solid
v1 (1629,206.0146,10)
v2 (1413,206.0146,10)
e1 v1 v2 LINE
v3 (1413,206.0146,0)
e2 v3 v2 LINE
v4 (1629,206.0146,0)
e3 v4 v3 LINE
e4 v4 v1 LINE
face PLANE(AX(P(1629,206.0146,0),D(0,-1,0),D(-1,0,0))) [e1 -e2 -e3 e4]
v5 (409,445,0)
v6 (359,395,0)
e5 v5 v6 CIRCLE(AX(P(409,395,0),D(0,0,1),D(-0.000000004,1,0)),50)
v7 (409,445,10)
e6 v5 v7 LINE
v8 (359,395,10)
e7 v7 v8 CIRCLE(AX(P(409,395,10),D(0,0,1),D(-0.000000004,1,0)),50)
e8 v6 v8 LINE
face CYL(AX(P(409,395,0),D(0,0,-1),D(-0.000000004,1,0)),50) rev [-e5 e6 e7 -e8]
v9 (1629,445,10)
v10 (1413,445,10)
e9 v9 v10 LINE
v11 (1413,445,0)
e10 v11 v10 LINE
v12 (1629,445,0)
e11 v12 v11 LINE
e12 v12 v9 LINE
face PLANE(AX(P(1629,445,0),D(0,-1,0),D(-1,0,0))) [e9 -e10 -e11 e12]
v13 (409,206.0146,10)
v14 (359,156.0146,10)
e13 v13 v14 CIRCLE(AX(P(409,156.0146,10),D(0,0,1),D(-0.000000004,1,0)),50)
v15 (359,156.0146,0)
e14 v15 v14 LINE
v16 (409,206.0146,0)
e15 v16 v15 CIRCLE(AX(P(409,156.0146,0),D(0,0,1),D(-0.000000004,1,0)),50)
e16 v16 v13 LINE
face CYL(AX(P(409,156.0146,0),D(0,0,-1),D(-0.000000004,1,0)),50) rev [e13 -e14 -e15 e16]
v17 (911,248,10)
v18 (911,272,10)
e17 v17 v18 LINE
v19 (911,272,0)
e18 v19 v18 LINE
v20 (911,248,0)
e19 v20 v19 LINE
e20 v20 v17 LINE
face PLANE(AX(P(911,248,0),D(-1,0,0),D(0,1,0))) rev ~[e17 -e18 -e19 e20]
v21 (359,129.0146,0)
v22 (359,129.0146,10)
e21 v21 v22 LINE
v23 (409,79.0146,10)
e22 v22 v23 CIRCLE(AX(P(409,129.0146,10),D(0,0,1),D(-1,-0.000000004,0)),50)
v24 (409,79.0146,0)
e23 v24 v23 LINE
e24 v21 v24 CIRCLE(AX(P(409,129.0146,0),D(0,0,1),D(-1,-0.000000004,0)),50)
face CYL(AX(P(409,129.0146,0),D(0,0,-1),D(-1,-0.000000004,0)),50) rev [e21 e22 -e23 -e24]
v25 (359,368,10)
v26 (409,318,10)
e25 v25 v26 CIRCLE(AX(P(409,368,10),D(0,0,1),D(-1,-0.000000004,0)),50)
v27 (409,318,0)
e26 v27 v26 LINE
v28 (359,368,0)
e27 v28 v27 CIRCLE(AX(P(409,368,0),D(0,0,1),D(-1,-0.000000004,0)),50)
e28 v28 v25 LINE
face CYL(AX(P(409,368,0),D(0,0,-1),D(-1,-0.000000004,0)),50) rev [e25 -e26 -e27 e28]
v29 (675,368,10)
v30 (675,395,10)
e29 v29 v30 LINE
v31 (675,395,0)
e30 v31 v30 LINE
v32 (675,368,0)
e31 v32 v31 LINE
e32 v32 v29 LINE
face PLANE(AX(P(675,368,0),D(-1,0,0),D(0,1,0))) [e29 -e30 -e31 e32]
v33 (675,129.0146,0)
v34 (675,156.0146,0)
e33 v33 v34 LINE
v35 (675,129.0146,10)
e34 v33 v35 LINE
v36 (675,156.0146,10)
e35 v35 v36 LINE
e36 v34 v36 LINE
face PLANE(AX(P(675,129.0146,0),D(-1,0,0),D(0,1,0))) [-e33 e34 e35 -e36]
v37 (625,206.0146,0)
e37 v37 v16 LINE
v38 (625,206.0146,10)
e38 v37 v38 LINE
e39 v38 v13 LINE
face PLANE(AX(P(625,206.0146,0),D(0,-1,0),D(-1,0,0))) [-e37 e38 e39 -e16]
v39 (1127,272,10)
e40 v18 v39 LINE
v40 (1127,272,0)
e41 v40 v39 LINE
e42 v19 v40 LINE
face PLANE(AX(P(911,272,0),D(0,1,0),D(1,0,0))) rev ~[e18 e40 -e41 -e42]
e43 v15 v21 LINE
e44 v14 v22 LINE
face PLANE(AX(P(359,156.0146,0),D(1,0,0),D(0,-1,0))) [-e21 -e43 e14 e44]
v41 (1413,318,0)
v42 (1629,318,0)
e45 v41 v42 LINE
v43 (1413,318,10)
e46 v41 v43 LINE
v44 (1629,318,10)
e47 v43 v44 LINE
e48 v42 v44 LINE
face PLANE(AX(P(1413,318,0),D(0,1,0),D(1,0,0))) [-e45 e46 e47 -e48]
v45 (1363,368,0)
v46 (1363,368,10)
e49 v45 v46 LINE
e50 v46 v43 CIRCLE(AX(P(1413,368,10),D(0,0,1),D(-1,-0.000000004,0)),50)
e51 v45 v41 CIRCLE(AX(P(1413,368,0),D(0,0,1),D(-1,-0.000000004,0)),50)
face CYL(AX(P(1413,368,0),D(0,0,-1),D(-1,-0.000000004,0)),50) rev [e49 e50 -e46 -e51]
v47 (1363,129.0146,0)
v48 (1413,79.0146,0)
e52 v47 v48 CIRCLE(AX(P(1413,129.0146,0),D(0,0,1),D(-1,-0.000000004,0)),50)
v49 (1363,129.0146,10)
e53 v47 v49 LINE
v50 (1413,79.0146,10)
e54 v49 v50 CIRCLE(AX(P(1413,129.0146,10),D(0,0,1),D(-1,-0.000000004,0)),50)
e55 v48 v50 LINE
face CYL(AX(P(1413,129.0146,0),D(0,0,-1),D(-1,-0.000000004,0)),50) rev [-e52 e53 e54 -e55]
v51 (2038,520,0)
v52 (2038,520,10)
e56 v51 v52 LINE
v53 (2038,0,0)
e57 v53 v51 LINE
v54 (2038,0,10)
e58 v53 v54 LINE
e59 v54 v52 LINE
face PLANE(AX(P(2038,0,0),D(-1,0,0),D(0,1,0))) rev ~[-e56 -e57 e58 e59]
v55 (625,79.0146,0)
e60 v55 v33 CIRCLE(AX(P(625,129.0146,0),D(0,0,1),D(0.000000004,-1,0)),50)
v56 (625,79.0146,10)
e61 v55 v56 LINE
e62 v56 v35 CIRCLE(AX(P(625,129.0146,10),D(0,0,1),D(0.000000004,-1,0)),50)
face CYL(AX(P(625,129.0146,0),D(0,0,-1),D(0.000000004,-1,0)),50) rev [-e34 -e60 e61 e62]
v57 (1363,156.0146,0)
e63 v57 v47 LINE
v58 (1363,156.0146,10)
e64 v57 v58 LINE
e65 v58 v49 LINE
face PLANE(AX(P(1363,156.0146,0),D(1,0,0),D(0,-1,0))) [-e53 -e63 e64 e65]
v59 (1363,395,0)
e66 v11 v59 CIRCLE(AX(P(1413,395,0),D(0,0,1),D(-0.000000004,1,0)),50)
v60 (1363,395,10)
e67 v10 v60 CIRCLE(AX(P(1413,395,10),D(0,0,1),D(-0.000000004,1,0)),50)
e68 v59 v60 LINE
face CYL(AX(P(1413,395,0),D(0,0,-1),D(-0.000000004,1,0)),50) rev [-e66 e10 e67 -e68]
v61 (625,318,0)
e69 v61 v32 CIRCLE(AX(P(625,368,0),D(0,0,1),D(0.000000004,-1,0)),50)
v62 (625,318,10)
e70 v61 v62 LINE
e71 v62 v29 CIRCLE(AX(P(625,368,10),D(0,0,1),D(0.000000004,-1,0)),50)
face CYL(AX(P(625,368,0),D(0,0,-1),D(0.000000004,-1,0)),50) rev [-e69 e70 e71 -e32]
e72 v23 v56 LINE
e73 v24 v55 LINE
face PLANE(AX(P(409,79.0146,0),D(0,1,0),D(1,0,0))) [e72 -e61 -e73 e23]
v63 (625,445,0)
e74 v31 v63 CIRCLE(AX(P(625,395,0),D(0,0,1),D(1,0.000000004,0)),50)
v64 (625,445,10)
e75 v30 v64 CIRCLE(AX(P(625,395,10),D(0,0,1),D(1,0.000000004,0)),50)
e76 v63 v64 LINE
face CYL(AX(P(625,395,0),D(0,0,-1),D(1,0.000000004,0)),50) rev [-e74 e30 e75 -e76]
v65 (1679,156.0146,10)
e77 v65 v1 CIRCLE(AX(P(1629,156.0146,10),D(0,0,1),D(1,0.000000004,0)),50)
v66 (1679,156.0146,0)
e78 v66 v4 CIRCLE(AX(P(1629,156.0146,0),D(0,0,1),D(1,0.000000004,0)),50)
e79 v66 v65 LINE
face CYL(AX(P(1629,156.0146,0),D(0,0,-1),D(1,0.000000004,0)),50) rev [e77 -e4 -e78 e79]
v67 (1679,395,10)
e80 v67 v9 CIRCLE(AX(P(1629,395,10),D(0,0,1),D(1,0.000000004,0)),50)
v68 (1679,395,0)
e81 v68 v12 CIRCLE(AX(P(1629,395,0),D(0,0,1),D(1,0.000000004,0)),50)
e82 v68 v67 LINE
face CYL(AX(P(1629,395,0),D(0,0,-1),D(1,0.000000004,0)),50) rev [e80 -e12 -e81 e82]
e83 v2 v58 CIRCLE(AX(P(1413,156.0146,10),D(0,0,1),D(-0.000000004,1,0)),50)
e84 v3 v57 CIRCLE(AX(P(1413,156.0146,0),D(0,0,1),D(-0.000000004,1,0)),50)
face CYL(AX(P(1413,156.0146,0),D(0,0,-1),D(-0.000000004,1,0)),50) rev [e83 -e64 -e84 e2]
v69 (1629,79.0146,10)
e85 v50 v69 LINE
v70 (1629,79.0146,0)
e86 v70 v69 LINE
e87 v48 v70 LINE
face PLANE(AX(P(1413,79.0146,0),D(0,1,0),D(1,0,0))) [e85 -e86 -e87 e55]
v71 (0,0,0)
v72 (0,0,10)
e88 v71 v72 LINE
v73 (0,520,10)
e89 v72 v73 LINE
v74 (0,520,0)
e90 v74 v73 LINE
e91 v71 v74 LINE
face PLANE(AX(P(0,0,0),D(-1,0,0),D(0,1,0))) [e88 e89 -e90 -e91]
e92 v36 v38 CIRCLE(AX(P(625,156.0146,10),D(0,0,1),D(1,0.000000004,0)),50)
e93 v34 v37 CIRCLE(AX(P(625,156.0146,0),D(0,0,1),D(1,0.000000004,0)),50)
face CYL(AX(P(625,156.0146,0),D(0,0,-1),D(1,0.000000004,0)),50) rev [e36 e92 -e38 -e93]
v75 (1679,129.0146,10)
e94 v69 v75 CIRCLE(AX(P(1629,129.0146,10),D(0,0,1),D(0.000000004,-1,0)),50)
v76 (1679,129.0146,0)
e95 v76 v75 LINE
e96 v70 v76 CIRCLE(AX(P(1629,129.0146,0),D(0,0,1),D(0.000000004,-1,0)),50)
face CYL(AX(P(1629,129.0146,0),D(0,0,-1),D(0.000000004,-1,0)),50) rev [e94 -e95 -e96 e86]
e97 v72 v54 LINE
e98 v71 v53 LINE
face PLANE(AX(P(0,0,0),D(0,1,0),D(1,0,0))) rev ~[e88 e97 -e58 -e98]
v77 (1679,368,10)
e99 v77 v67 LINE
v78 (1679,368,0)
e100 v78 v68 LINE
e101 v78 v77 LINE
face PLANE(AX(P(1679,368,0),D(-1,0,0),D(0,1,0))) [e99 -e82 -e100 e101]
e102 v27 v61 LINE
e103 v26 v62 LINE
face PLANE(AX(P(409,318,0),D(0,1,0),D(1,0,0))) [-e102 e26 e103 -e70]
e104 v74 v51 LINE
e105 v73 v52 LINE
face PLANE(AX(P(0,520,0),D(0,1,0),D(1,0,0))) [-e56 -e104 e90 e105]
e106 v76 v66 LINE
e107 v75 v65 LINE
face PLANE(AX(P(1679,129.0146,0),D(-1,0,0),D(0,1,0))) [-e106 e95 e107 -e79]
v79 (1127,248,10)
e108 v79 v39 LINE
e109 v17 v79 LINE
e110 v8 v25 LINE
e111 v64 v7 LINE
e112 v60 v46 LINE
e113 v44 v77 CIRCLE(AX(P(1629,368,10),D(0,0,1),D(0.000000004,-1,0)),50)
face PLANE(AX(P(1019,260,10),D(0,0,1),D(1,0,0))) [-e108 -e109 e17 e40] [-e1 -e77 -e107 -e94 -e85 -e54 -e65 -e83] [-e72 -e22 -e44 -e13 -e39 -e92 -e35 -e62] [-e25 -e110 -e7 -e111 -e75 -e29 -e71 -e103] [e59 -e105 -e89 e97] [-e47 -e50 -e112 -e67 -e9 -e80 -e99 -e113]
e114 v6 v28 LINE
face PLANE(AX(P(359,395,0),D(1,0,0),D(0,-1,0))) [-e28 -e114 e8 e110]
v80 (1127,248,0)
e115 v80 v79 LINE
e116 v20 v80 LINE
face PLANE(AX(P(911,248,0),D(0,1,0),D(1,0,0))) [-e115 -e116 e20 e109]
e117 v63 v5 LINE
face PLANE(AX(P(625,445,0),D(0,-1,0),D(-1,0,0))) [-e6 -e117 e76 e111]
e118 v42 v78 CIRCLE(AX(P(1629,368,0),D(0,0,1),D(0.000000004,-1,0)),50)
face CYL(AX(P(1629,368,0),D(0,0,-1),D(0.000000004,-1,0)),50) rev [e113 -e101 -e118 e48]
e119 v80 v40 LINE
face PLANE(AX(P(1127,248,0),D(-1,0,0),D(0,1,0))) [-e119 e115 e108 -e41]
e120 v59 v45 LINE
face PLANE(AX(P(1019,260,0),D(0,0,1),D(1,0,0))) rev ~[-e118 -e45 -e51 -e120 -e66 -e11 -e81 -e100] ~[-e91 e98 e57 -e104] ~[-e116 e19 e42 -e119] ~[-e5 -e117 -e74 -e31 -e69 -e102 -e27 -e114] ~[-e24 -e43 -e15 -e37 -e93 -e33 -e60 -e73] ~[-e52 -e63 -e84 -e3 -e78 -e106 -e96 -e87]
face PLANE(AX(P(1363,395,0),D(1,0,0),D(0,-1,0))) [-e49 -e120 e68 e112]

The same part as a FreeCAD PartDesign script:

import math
import FreeCAD as App
import Part
import Sketcher


def add_polygon(sketch, points):
    """Adds a closed chain of lines whose ends are joined by coincident constraints."""
    first, n = sketch.GeometryCount, len(points)
    for a, b in zip(points, points[1:] + points[:1]):
        sketch.addGeometry(Part.LineSegment(App.Vector(*a, 0), App.Vector(*b, 0)), False)
    for i in range(n):
        sketch.addConstraint(Sketcher.Constraint("Coincident", first + i, 2, first + (i + 1) % n, 1))

doc = App.newDocument("Part")
body = doc.addObject("PartDesign::Body", "Body")

# Sketch on XY plane
sketch1 = body.newObject("Sketcher::SketchObject", "Sketch")
sketch1.AttachmentSupport = (doc.getObject("XY_Plane"), [""])
sketch1.MapMode = "FlatFace"
add_polygon(sketch1, [(0, 520), (0, 0), (2038, 0), (2038, 520)])  # lines 0-3
sketch1.addGeometry(Part.LineSegment(App.Vector(359, 129, 0), App.Vector(359, 156, 0)), False)  # 4
sketch1.addGeometry(Part.ArcOfCircle(Part.Circle(App.Vector(409, 156, 0), App.Vector(0, 0, 1), 50), math.radians(90), math.radians(180)), False)  # 5
sketch1.addGeometry(Part.LineSegment(App.Vector(409, 206, 0), App.Vector(625, 206, 0)), False)  # 6
sketch1.addGeometry(Part.ArcOfCircle(Part.Circle(App.Vector(625, 156, 0), App.Vector(0, 0, 1), 50), math.radians(0), math.radians(90)), False)  # 7
sketch1.addGeometry(Part.LineSegment(App.Vector(675, 156, 0), App.Vector(675, 129, 0)), False)  # 8
sketch1.addGeometry(Part.ArcOfCircle(Part.Circle(App.Vector(625, 129, 0), App.Vector(0, 0, 1), 50), math.radians(-90), math.radians(0)), False)  # 9
sketch1.addGeometry(Part.LineSegment(App.Vector(625, 79, 0), App.Vector(409, 79, 0)), False)  # 10
sketch1.addGeometry(Part.ArcOfCircle(Part.Circle(App.Vector(409, 129, 0), App.Vector(0, 0, 1), 50), math.radians(-180), math.radians(-90)), False)  # 11
sketch1.addGeometry(Part.LineSegment(App.Vector(1363, 129, 0), App.Vector(1363, 156, 0)), False)  # 12
sketch1.addGeometry(Part.ArcOfCircle(Part.Circle(App.Vector(1413, 156, 0), App.Vector(0, 0, 1), 50), math.radians(90), math.radians(180)), False)  # 13
sketch1.addGeometry(Part.LineSegment(App.Vector(1413, 206, 0), App.Vector(1629, 206, 0)), False)  # 14
sketch1.addGeometry(Part.ArcOfCircle(Part.Circle(App.Vector(1629, 156, 0), App.Vector(0, 0, 1), 50), math.radians(0), math.radians(90)), False)  # 15
sketch1.addGeometry(Part.LineSegment(App.Vector(1679, 156, 0), App.Vector(1679, 129, 0)), False)  # 16
sketch1.addGeometry(Part.ArcOfCircle(Part.Circle(App.Vector(1629, 129, 0), App.Vector(0, 0, 1), 50), math.radians(-90), math.radians(0)), False)  # 17
sketch1.addGeometry(Part.LineSegment(App.Vector(1629, 79, 0), App.Vector(1413, 79, 0)), False)  # 18
sketch1.addGeometry(Part.ArcOfCircle(Part.Circle(App.Vector(1413, 129, 0), App.Vector(0, 0, 1), 50), math.radians(-180), math.radians(-90)), False)  # 19
add_polygon(sketch1, [(1127, 248), (911, 248), (911, 272), (1127, 272)])  # lines 20-23
sketch1.addGeometry(Part.LineSegment(App.Vector(359, 368, 0), App.Vector(359, 395, 0)), False)  # 24
sketch1.addGeometry(Part.ArcOfCircle(Part.Circle(App.Vector(409, 395, 0), App.Vector(0, 0, 1), 50), math.radians(90), math.radians(180)), False)  # 25
sketch1.addGeometry(Part.LineSegment(App.Vector(409, 445, 0), App.Vector(625, 445, 0)), False)  # 26
sketch1.addGeometry(Part.ArcOfCircle(Part.Circle(App.Vector(625, 395, 0), App.Vector(0, 0, 1), 50), math.radians(0), math.radians(90)), False)  # 27
sketch1.addGeometry(Part.LineSegment(App.Vector(675, 395, 0), App.Vector(675, 368, 0)), False)  # 28
sketch1.addGeometry(Part.ArcOfCircle(Part.Circle(App.Vector(625, 368, 0), App.Vector(0, 0, 1), 50), math.radians(-90), math.radians(0)), False)  # 29
sketch1.addGeometry(Part.LineSegment(App.Vector(625, 318, 0), App.Vector(409, 318, 0)), False)  # 30
sketch1.addGeometry(Part.ArcOfCircle(Part.Circle(App.Vector(409, 368, 0), App.Vector(0, 0, 1), 50), math.radians(-180), math.radians(-90)), False)  # 31
sketch1.addGeometry(Part.LineSegment(App.Vector(1363, 368, 0), App.Vector(1363, 395, 0)), False)  # 32
sketch1.addGeometry(Part.ArcOfCircle(Part.Circle(App.Vector(1413, 395, 0), App.Vector(0, 0, 1), 50), math.radians(90), math.radians(180)), False)  # 33
sketch1.addGeometry(Part.LineSegment(App.Vector(1413, 445, 0), App.Vector(1629, 445, 0)), False)  # 34
sketch1.addGeometry(Part.ArcOfCircle(Part.Circle(App.Vector(1629, 395, 0), App.Vector(0, 0, 1), 50), math.radians(0), math.radians(90)), False)  # 35
sketch1.addGeometry(Part.LineSegment(App.Vector(1679, 395, 0), App.Vector(1679, 368, 0)), False)  # 36
sketch1.addGeometry(Part.ArcOfCircle(Part.Circle(App.Vector(1629, 368, 0), App.Vector(0, 0, 1), 50), math.radians(-90), math.radians(0)), False)  # 37
sketch1.addGeometry(Part.LineSegment(App.Vector(1629, 318, 0), App.Vector(1413, 318, 0)), False)  # 38
sketch1.addGeometry(Part.ArcOfCircle(Part.Circle(App.Vector(1413, 368, 0), App.Vector(0, 0, 1), 50), math.radians(-180), math.radians(-90)), False)  # 39
sketch1.addConstraint([
    Sketcher.Constraint("Tangent", 4, 2, 5, 2),
    Sketcher.Constraint("Tangent", 5, 1, 6, 1),
    Sketcher.Constraint("Tangent", 6, 2, 7, 2),
    Sketcher.Constraint("Tangent", 7, 1, 8, 1),
    Sketcher.Constraint("Tangent", 8, 2, 9, 2),
    Sketcher.Constraint("Tangent", 9, 1, 10, 1),
    Sketcher.Constraint("Tangent", 10, 2, 11, 2),
    Sketcher.Constraint("Tangent", 11, 1, 4, 1),
    Sketcher.Constraint("Tangent", 12, 2, 13, 2),
    Sketcher.Constraint("Tangent", 13, 1, 14, 1),
    Sketcher.Constraint("Tangent", 14, 2, 15, 2),
    Sketcher.Constraint("Tangent", 15, 1, 16, 1),
    Sketcher.Constraint("Tangent", 16, 2, 17, 2),
    Sketcher.Constraint("Tangent", 17, 1, 18, 1),
    Sketcher.Constraint("Tangent", 18, 2, 19, 2),
    Sketcher.Constraint("Tangent", 19, 1, 12, 1),
    Sketcher.Constraint("Tangent", 24, 2, 25, 2),
    Sketcher.Constraint("Tangent", 25, 1, 26, 1),
    Sketcher.Constraint("Tangent", 26, 2, 27, 2),
    Sketcher.Constraint("Tangent", 27, 1, 28, 1),
    Sketcher.Constraint("Tangent", 28, 2, 29, 2),
    Sketcher.Constraint("Tangent", 29, 1, 30, 1),
    Sketcher.Constraint("Tangent", 30, 2, 31, 2),
    Sketcher.Constraint("Tangent", 31, 1, 24, 1),
    Sketcher.Constraint("Tangent", 32, 2, 33, 2),
    Sketcher.Constraint("Tangent", 33, 1, 34, 1),
    Sketcher.Constraint("Tangent", 34, 2, 35, 2),
    Sketcher.Constraint("Tangent", 35, 1, 36, 1),
    Sketcher.Constraint("Tangent", 36, 2, 37, 2),
    Sketcher.Constraint("Tangent", 37, 1, 38, 1),
    Sketcher.Constraint("Tangent", 38, 2, 39, 2),
    Sketcher.Constraint("Tangent", 39, 1, 32, 1),
    Sketcher.Constraint("Vertical", 0),
    Sketcher.Constraint("Horizontal", 1),
    Sketcher.Constraint("Vertical", 2),
    Sketcher.Constraint("Horizontal", 3),
    Sketcher.Constraint("Vertical", 4),
    Sketcher.Constraint("Horizontal", 6),
    Sketcher.Constraint("Vertical", 8),
    Sketcher.Constraint("Horizontal", 10),
    Sketcher.Constraint("Vertical", 12),
    Sketcher.Constraint("Horizontal", 14),
    Sketcher.Constraint("Vertical", 16),
    Sketcher.Constraint("Horizontal", 18),
    Sketcher.Constraint("Horizontal", 20),
    Sketcher.Constraint("Vertical", 21),
    Sketcher.Constraint("Horizontal", 22),
    Sketcher.Constraint("Vertical", 23),
    Sketcher.Constraint("Vertical", 24),
    Sketcher.Constraint("Horizontal", 26),
    Sketcher.Constraint("Vertical", 28),
    Sketcher.Constraint("Horizontal", 30),
    Sketcher.Constraint("Vertical", 32),
    Sketcher.Constraint("Horizontal", 34),
    Sketcher.Constraint("Vertical", 36),
    Sketcher.Constraint("Horizontal", 38),
    Sketcher.Constraint("Coincident", 0, 2, -1, 1),
    Sketcher.Constraint("Equal", 5, 7),
    Sketcher.Constraint("Equal", 7, 9),
    Sketcher.Constraint("Equal", 9, 11),
    Sketcher.Constraint("Equal", 11, 13),
    Sketcher.Constraint("Equal", 13, 15),
    Sketcher.Constraint("Equal", 15, 17),
    Sketcher.Constraint("Equal", 17, 19),
    Sketcher.Constraint("Equal", 19, 25),
    Sketcher.Constraint("Equal", 25, 27),
    Sketcher.Constraint("Equal", 27, 29),
    Sketcher.Constraint("Equal", 29, 31),
    Sketcher.Constraint("Equal", 31, 33),
    Sketcher.Constraint("Equal", 33, 35),
    Sketcher.Constraint("Equal", 35, 37),
    Sketcher.Constraint("Equal", 37, 39),
    Sketcher.Constraint("Horizontal", 7, 3, 13, 3),
    Sketcher.Constraint("Horizontal", 11, 3, 17, 3),
    Sketcher.Constraint("Horizontal", 27, 3, 33, 3),
    Sketcher.Constraint("Horizontal", 31, 3, 37, 3),
    Sketcher.Constraint("Vertical", 11, 3, 25, 3),
    Sketcher.Constraint("Vertical", 9, 3, 27, 3),
    Sketcher.Constraint("Vertical", 19, 3, 33, 3),
    Sketcher.Constraint("Vertical", 17, 3, 35, 3),
    Sketcher.Constraint("Equal", 10, 14),
    Sketcher.Constraint("Equal", 18, 20),
    Sketcher.Constraint("Equal", 16, 24),
    Sketcher.Constraint("Radius", 5, 50.0),
    Sketcher.Constraint("DistanceX", 1, 1, 1, 2, 2038.0),
    Sketcher.Constraint("DistanceX", 6, 1, 6, 2, 216.0),
    Sketcher.Constraint("DistanceY", 0, 2, 0, 1, 520.0),
    Sketcher.Constraint("DistanceY", 4, 1, 4, 2, 27.0),
    Sketcher.Constraint("DistanceY", 21, 1, 21, 2, 24.0),
    Sketcher.Constraint("DistanceX", -1, 1, 5, 3, 409.0),
    Sketcher.Constraint("DistanceX", -1, 1, 13, 3, 1413.0),
    Sketcher.Constraint("DistanceY", -1, 1, 25, 3, 395.0),
    Sketcher.Constraint("DistanceX", -1, 1, 20, 2, 911.0),
    Sketcher.Constraint("DistanceY", -1, 1, 20, 2, 248.0),
    Sketcher.Constraint("DistanceY", -1, 1, 5, 3, 156.0146),
])
pad1 = body.newObject("PartDesign::Pad", "Pad")
pad1.Profile = sketch1
pad1.Length = 10

doc.recompute()
